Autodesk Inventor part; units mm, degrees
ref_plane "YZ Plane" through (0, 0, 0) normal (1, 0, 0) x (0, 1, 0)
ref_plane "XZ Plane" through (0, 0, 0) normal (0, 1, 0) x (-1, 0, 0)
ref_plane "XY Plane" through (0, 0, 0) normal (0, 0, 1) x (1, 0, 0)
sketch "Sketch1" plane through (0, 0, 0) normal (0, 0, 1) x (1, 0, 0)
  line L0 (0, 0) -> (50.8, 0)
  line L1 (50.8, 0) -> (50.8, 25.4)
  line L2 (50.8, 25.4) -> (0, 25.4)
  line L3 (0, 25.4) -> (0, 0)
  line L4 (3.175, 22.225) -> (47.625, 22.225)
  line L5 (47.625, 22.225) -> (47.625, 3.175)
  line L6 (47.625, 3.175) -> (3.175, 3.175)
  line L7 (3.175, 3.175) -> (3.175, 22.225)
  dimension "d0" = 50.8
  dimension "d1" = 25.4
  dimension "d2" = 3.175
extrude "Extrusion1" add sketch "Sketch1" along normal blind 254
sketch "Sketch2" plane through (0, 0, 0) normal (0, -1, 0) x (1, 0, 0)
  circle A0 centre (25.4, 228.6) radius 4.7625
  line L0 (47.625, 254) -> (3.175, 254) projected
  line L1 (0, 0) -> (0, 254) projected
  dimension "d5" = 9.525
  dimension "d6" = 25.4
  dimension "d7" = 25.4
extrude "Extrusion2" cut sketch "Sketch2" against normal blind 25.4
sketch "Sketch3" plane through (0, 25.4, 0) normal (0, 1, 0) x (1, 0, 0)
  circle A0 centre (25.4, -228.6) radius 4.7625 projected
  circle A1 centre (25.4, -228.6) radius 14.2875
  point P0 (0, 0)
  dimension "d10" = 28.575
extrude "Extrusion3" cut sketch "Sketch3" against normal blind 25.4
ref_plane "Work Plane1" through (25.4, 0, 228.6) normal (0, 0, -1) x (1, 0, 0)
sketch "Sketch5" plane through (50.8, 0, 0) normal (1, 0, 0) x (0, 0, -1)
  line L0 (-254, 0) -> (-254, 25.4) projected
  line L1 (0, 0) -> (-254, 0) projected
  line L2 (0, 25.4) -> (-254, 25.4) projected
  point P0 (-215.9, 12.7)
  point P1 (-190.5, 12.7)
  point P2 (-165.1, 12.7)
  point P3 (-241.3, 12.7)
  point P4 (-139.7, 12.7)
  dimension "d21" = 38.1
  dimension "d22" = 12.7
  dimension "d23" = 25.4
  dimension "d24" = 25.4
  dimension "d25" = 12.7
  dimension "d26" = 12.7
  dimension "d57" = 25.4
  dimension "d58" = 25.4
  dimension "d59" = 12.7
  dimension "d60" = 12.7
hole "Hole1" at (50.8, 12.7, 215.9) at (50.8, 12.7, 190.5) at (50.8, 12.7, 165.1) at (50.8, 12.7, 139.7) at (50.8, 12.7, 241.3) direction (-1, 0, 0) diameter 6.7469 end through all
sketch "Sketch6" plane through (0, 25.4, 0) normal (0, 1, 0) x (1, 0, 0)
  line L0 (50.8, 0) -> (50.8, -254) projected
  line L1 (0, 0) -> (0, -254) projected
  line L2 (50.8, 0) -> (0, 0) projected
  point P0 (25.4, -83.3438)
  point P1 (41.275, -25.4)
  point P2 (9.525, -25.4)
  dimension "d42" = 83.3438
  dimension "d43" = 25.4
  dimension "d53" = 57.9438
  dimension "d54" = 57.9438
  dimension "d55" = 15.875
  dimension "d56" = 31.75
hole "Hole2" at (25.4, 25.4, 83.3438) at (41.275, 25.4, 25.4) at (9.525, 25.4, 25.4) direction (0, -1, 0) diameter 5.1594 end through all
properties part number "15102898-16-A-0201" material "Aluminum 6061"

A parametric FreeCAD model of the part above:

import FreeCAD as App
import Part
import Sketcher
Q = App.Units.Quantity

doc = App.newDocument("Part")
body = doc.addObject("PartDesign::Body", "Body")

# Sketch on XY plane
sketch1 = body.newObject("Sketcher::SketchObject", "Sketch")
sketch1.AttachmentSupport = (doc.getObject("XY_Plane"), [""])
sketch1.MapMode = "FlatFace"
sketch1.addGeometry(Part.LineSegment(App.Vector(0, 25, 0), App.Vector(0, 0, 0)), False)
sketch1.addGeometry(Part.LineSegment(App.Vector(0, 0, 0), App.Vector(51, 0, 0)), False)
sketch1.addGeometry(Part.LineSegment(App.Vector(51, 0, 0), App.Vector(51, 25, 0)), False)
sketch1.addGeometry(Part.LineSegment(App.Vector(51, 25, 0), App.Vector(0, 25, 0)), False)
sketch1.addGeometry(Part.LineSegment(App.Vector(3, 3, 0), App.Vector(3, 22, 0)), False)
sketch1.addGeometry(Part.LineSegment(App.Vector(3, 22, 0), App.Vector(48, 22, 0)), False)
sketch1.addGeometry(Part.LineSegment(App.Vector(48, 22, 0), App.Vector(48, 3, 0)), False)
sketch1.addGeometry(Part.LineSegment(App.Vector(48, 3, 0), App.Vector(3, 3, 0)), False)
sketch1.addConstraint(Sketcher.Constraint("Coincident", 0, 2, 1, 1))
sketch1.addConstraint(Sketcher.Constraint("Coincident", 1, 2, 2, 1))
sketch1.addConstraint(Sketcher.Constraint("Coincident", 2, 2, 3, 1))
sketch1.addConstraint(Sketcher.Constraint("Coincident", 3, 2, 0, 1))
sketch1.addConstraint(Sketcher.Constraint("Coincident", 4, 2, 5, 1))
sketch1.addConstraint(Sketcher.Constraint("Coincident", 5, 2, 6, 1))
sketch1.addConstraint(Sketcher.Constraint("Coincident", 6, 2, 7, 1))
sketch1.addConstraint(Sketcher.Constraint("Coincident", 7, 2, 4, 1))
sketch1.addConstraint(Sketcher.Constraint("Vertical", 0))
sketch1.addConstraint(Sketcher.Constraint("Horizontal", 1))
sketch1.addConstraint(Sketcher.Constraint("Vertical", 2))
sketch1.addConstraint(Sketcher.Constraint("Horizontal", 3))
sketch1.addConstraint(Sketcher.Constraint("Vertical", 4))
sketch1.addConstraint(Sketcher.Constraint("Horizontal", 5))
sketch1.addConstraint(Sketcher.Constraint("Vertical", 6))
sketch1.addConstraint(Sketcher.Constraint("Horizontal", 7))
sketch1.addConstraint(Sketcher.Constraint("Coincident", 0, 2, -1, 1))
sketch1.addConstraint(Sketcher.Constraint("DistanceX", 1, 1, 1, 2, Q("2 in")))
sketch1.addConstraint(Sketcher.Constraint("DistanceY", 0, 2, 0, 1, Q("1 in")))
sketch1.addConstraint(Sketcher.Constraint("DistanceX", -1, 1, 4, 2, Q("0.125 in")))
sketch1.addConstraint(Sketcher.Constraint("DistanceY", -1, 1, 6, 2, Q("0.125 in")))
sketch1.addConstraint(Sketcher.Constraint("DistanceY", 4, 2, 3, 2, Q("0.125 in")))
sketch1.addConstraint(Sketcher.Constraint("DistanceX", 5, 2, 2, 2, Q("0.125 in")))
pad1 = body.newObject("PartDesign::Pad", "Pad")
pad1.Profile = sketch1
pad1.Length = Q("10 in")

# Sketch on XZ plane
sketch2 = body.newObject("Sketcher::SketchObject", "Sketch001")
sketch2.AttachmentSupport = (doc.getObject("XZ_Plane"), [""])
sketch2.MapMode = "FlatFace"
sketch2.addGeometry(Part.Circle(App.Vector(25.4, 228.6, 0), App.Vector(0, 0, 1), 4.8), False)
sketch2.addConstraint(Sketcher.Constraint("Diameter", 0, Q("0.375 in")))
sketch2.addConstraint(Sketcher.Constraint("DistanceX", -1, 1, 0, 3, Q("1 in")))
sketch2.addConstraint(Sketcher.Constraint("DistanceY", -1, 1, 0, 3, Q("9 in")))
pocket1 = body.newObject("PartDesign::Pocket", "Pocket")
pocket1.Profile = sketch2
pocket1.Length = Q("1 in")

# Sketch on XZ plane
sketch3 = body.newObject("Sketcher::SketchObject", "Sketch002")
sketch3.AttachmentSupport = (doc.getObject("XZ_Plane"), [""])
sketch3.MapMode = "FlatFace"
sketch3.AttachmentOffset = App.Placement(App.Vector(0, 0, -1 * 25.4), App.Rotation())
sketch3.addGeometry(Part.Circle(App.Vector(25.4, 228.6, 0), App.Vector(0, 0, 1), 14.3), False)
sketch3.addGeometry(Part.Circle(App.Vector(25.4, 228.6, 0), App.Vector(0, 0, 1), 4.8), False)
sketch3.addConstraint(Sketcher.Constraint("Coincident", 1, 3, 0, 3))
sketch3.addConstraint(Sketcher.Constraint("Diameter", 0, Q("1.125 in")))
sketch3.addConstraint(Sketcher.Constraint("Diameter", 1, Q("0.375 in")))
sketch3.addConstraint(Sketcher.Constraint("DistanceX", -1, 1, 0, 3, Q("1 in")))
sketch3.addConstraint(Sketcher.Constraint("DistanceY", -1, 1, 0, 3, Q("9 in")))
pocket2 = body.newObject("PartDesign::Pocket", "Pocket001")
pocket2.Profile = sketch3
pocket2.Length = Q("1 in")
pocket2.Reversed = True

# Sketch on YZ plane
sketch4 = body.newObject("Sketcher::SketchObject", "Sketch003")
sketch4.AttachmentSupport = (doc.getObject("YZ_Plane"), [""])
sketch4.MapMode = "FlatFace"
sketch4.AttachmentOffset = App.Placement(App.Vector(0, 0, 2 * 25.4), App.Rotation())
sketch4.addGeometry(Part.Circle(App.Vector(12.7, 215.9, 0), App.Vector(0, 0, 1), 3.4), False)
sketch4.addGeometry(Part.Circle(App.Vector(12.7, 190.5, 0), App.Vector(0, 0, 1), 3.4), False)
sketch4.addGeometry(Part.Circle(App.Vector(12.7, 165.1, 0), App.Vector(0, 0, 1), 3.4), False)
sketch4.addGeometry(Part.Circle(App.Vector(12.7, 139.7, 0), App.Vector(0, 0, 1), 3.4), False)
sketch4.addGeometry(Part.Circle(App.Vector(12.7, 241.3, 0), App.Vector(0, 0, 1), 3.4), False)
sketch4.addConstraint(Sketcher.Constraint("Equal", 0, 1))
sketch4.addConstraint(Sketcher.Constraint("Equal", 1, 2))
sketch4.addConstraint(Sketcher.Constraint("Equal", 2, 3))
sketch4.addConstraint(Sketcher.Constraint("Equal", 3, 4))
sketch4.addConstraint(Sketcher.Constraint("Vertical", 0, 3, 1, 3))
sketch4.addConstraint(Sketcher.Constraint("Vertical", 1, 3, 2, 3))
sketch4.addConstraint(Sketcher.Constraint("Vertical", 2, 3, 3, 3))
sketch4.addConstraint(Sketcher.Constraint("Vertical", 3, 3, 4, 3))
sketch4.addConstraint(Sketcher.Constraint("Diameter", 0, Q("0.2656299 in")))
sketch4.addConstraint(Sketcher.Constraint("DistanceY", 1, 3, 0, 3, Q("1 in")))
sketch4.addConstraint(Sketcher.Constraint("DistanceY", 2, 3, 1, 3, Q("1 in")))
sketch4.addConstraint(Sketcher.Constraint("DistanceY", 3, 3, 2, 3, Q("1 in")))
sketch4.addConstraint(Sketcher.Constraint("DistanceY", 0, 3, 4, 3, Q("1 in")))
sketch4.addConstraint(Sketcher.Constraint("DistanceX", -1, 1, 0, 3, Q("0.5 in")))
sketch4.addConstraint(Sketcher.Constraint("DistanceY", -1, 1, 0, 3, Q("8.5 in")))
doc.recompute()
hole = body.newObject("PartDesign::Hole", "Hole")
hole.Profile = sketch4
hole.ThreadType = "None"
hole.Diameter = Q("0.265626 in")
hole.DepthType = "ThroughAll"

# Sketch on XZ plane
sketch5 = body.newObject("Sketcher::SketchObject", "Sketch004")
sketch5.AttachmentSupport = (doc.getObject("XZ_Plane"), [""])
sketch5.MapMode = "FlatFace"
sketch5.AttachmentOffset = App.Placement(App.Vector(0, 0, -1 * 25.4), App.Rotation())
sketch5.addGeometry(Part.Circle(App.Vector(25.4, 83.3, 0), App.Vector(0, 0, 1), 2.6), False)
sketch5.addGeometry(Part.Circle(App.Vector(41.3, 25.4, 0), App.Vector(0, 0, 1), 2.6), False)
sketch5.addGeometry(Part.Circle(App.Vector(9.5, 25.4, 0), App.Vector(0, 0, 1), 2.6), False)
sketch5.addConstraint(Sketcher.Constraint("Equal", 0, 1))
sketch5.addConstraint(Sketcher.Constraint("Equal", 1, 2))
sketch5.addConstraint(Sketcher.Constraint("Horizontal", 1, 3, 2, 3))
sketch5.addConstraint(Sketcher.Constraint("Diameter", 0, Q("0.203126 in")))
sketch5.addConstraint(Sketcher.Constraint("DistanceX", -1, 1, 0, 3, Q("1 in")))
sketch5.addConstraint(Sketcher.Constraint("DistanceY", -1, 1, 1, 3, Q("1 in")))
sketch5.addConstraint(Sketcher.Constraint("DistanceX", 2, 3, 1, 3, Q("1.25 in")))
sketch5.addConstraint(Sketcher.Constraint("DistanceY", -1, 1, 0, 3, Q("3.281252 in")))
sketch5.addConstraint(Sketcher.Constraint("DistanceX", -1, 1, 1, 3, Q("1.625 in")))
doc.recompute()
hole2 = body.newObject("PartDesign::Hole", "Hole001")
hole2.Profile = sketch5
hole2.ThreadType = "None"
hole2.Diameter = Q("0.203126 in")
hole2.DepthType = "ThroughAll"
hole2.Reversed = True

doc.recompute()
